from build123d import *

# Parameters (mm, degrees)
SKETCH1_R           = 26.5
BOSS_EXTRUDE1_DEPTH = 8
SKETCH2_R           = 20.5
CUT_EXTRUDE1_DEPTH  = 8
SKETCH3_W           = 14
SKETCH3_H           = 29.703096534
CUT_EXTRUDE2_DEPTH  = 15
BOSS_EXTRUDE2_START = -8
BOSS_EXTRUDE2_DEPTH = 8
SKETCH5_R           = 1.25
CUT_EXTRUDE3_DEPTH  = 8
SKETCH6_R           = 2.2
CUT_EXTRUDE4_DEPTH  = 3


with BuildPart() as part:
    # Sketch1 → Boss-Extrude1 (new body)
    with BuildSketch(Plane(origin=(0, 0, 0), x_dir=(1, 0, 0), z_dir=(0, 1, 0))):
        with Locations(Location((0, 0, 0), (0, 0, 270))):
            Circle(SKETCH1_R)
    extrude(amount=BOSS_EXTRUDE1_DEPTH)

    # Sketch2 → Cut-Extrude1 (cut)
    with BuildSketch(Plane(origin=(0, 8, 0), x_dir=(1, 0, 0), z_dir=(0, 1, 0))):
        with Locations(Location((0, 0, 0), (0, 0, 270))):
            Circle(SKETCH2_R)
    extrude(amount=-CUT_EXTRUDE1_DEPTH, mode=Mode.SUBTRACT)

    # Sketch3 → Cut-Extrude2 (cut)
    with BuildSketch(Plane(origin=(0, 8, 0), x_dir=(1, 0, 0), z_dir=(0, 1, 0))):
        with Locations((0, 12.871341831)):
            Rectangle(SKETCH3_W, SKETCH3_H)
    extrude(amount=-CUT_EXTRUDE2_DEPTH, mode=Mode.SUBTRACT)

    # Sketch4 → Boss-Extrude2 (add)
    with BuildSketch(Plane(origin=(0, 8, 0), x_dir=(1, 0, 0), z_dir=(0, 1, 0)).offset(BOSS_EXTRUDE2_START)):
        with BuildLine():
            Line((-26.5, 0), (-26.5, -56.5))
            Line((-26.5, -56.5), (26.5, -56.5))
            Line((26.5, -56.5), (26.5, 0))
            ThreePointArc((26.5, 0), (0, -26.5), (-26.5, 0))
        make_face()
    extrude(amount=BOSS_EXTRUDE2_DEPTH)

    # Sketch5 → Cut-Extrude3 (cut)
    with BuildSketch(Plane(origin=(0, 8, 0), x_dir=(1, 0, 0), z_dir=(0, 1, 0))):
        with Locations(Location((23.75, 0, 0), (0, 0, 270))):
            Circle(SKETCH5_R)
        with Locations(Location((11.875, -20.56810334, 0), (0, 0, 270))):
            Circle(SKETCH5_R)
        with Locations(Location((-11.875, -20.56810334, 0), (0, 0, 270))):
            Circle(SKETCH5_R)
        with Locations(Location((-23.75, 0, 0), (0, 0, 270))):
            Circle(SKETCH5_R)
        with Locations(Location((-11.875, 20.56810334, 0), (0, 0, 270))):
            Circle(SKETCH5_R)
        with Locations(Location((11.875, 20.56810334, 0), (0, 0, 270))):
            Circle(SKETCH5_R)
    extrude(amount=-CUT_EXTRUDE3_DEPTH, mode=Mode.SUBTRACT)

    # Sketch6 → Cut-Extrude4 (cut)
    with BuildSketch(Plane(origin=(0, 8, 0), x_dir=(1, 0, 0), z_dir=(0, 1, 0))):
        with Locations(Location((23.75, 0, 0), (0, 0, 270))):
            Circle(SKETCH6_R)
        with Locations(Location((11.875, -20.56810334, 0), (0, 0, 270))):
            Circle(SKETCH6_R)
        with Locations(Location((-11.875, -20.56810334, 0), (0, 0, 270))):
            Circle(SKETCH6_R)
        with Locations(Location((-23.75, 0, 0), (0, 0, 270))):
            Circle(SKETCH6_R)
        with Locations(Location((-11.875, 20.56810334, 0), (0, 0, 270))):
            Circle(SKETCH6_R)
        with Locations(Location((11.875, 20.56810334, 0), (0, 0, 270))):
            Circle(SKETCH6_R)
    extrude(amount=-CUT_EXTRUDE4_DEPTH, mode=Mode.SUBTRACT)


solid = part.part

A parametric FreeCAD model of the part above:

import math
import FreeCAD as App
import Part
import Sketcher
from FreeCAD import Vector


def add_polygon(sketch, points):
    """Adds a closed chain of lines whose ends are joined by coincident constraints."""
    first, n = sketch.GeometryCount, len(points)
    for a, b in zip(points, points[1:] + points[:1]):
        sketch.addGeometry(Part.LineSegment(App.Vector(*a, 0), App.Vector(*b, 0)), False)
    for i in range(n):
        sketch.addConstraint(Sketcher.Constraint("Coincident", first + i, 2, first + (i + 1) % n, 1))

doc = App.newDocument("Part")
params = doc.addObject("Spreadsheet::Sheet", "Params")
for row, (alias, value) in enumerate([
    ("sketch1_diameter", "53 mm"),
    ("pad1_length", "8 mm"),
    ("sketch2_diameter", "41 mm"),
    ("pocket1_length", "8 mm"),
    ("sketch3_width", "14 mm"),
    ("pocket2_length", "15 mm"),
    ("sketch4_radius", "26.5 mm"),
    ("sketch4_height", "56.5 mm"),
    ("pad2_length", "8 mm"),
    ("sketch5_diameter", "2.5 mm"),
    ("pocket3_length", "8 mm"),
    ("sketch6_diameter", "4.4 mm"),
    ("pocket4_length", "3 mm"),
], start=1):
    params.set(f"A{row}", alias)
    params.set(f"B{row}", "=" + value)
    params.setAlias(f"B{row}", alias)

body = doc.addObject("PartDesign::Body", "Body")

# Sketch on XZ plane
sketch1 = doc.addObject("Sketcher::SketchObject", "Sketch")
body.addObject(sketch1)
sketch1.AttachmentSupport = (doc.XZ_Plane, [""])
sketch1.MapMode = "FlatFace"
sketch1.addGeometry(Part.Circle(Vector(0, 0, 0), Vector(0, 0, 1), 26), False)
sketch1.addConstraint(Sketcher.Constraint("Coincident", 0, 3, -1, 1))
sketch1.addConstraint(Sketcher.Constraint("Diameter", 0, 53.0))
sketch1.setExpression("Constraints[1]", "Params.sketch1_diameter")
pad1 = doc.addObject("PartDesign::Pad", "Pad")
body.addObject(pad1)
pad1.Profile = sketch1
pad1.setExpression("Length", "Params.pad1_length")
pad1.Reversed = True

# Sketch on XZ plane
sketch2 = doc.addObject("Sketcher::SketchObject", "Sketch001")
body.addObject(sketch2)
sketch2.AttachmentSupport = (doc.XZ_Plane, [""])
sketch2.MapMode = "FlatFace"
sketch2.AttachmentOffset = App.Placement(Vector(0, 0, -8), App.Rotation())
sketch2.addGeometry(Part.Circle(Vector(0, 0, 0), Vector(0, 0, 1), 20), False)
sketch2.addConstraint(Sketcher.Constraint("Coincident", 0, 3, -1, 1))
sketch2.addConstraint(Sketcher.Constraint("Diameter", 0, 41.0))
sketch2.setExpression("Constraints[1]", "Params.sketch2_diameter")
pocket1 = doc.addObject("PartDesign::Pocket", "Pocket")
body.addObject(pocket1)
pocket1.Profile = sketch2
pocket1.setExpression("Length", "Params.pocket1_length")
pocket1.Reversed = True

# Sketch on XZ plane
sketch3 = doc.addObject("Sketcher::SketchObject", "Sketch002")
body.addObject(sketch3)
sketch3.AttachmentSupport = (doc.XZ_Plane, [""])
sketch3.MapMode = "FlatFace"
sketch3.AttachmentOffset = App.Placement(Vector(0, 0, -8), App.Rotation())
add_polygon(sketch3, [(-7, -28), (-7, 2), (7, 2), (7, -28)])  # lines 0-3
sketch3.addConstraint(Sketcher.Constraint("Vertical", 0))
sketch3.addConstraint(Sketcher.Constraint("Horizontal", 1))
sketch3.addConstraint(Sketcher.Constraint("Vertical", 2))
sketch3.addConstraint(Sketcher.Constraint("Horizontal", 3))
sketch3.addConstraint(Sketcher.Constraint("DistanceX", 1, 1, 1, 2, 14.0))
sketch3.addConstraint(Sketcher.Constraint("DistanceX", 0, 2, -1, 1, 7.0))
sketch3.addConstraint(Sketcher.Constraint("DistanceY", 0, 1, 0, 2, 29.703097))
sketch3.addConstraint(Sketcher.Constraint("DistanceY", 2, 2, -1, 1, 27.72289))
sketch3.setExpression("Constraints[8]", "Params.sketch3_width")
pocket2 = doc.addObject("PartDesign::Pocket", "Pocket001")
body.addObject(pocket2)
pocket2.Profile = sketch3
pocket2.setExpression("Length", "Params.pocket2_length")
pocket2.Reversed = True

# Sketch on XZ plane
sketch4 = doc.addObject("Sketcher::SketchObject", "Sketch003")
body.addObject(sketch4)
sketch4.AttachmentSupport = (doc.XZ_Plane, [""])
sketch4.MapMode = "FlatFace"
sketch4.addGeometry(Part.LineSegment(Vector(-26, 0, 0), Vector(-26, 56, 0)), False)
sketch4.addGeometry(Part.LineSegment(Vector(-26, 56, 0), Vector(26, 56, 0)), False)
sketch4.addGeometry(Part.LineSegment(Vector(26, 56, 0), Vector(26, 0, 0)), False)
sketch4.addGeometry(Part.ArcOfCircle(Part.Circle(Vector(0, 0, 0), Vector(0, 0, 1), 26), math.radians(0), math.radians(180)), False)
sketch4.addConstraint(Sketcher.Constraint("Coincident", 0, 2, 1, 1))
sketch4.addConstraint(Sketcher.Constraint("Coincident", 1, 2, 2, 1))
sketch4.addConstraint(Sketcher.Constraint("Tangent", 2, 2, 3, 1))
sketch4.addConstraint(Sketcher.Constraint("Tangent", 3, 2, 0, 1))
sketch4.addConstraint(Sketcher.Constraint("Vertical", 0))
sketch4.addConstraint(Sketcher.Constraint("Horizontal", 1))
sketch4.addConstraint(Sketcher.Constraint("Vertical", 2))
sketch4.addConstraint(Sketcher.Constraint("Coincident", 3, 3, -1, 1))
sketch4.addConstraint(Sketcher.Constraint("Radius", 3, 26.5))
sketch4.addConstraint(Sketcher.Constraint("DistanceY", 0, 1, 0, 2, 56.5))
sketch4.setExpression("Constraints[8]", "Params.sketch4_radius")
sketch4.setExpression("Constraints[9]", "Params.sketch4_height")
pad2 = doc.addObject("PartDesign::Pad", "Pad001")
body.addObject(pad2)
pad2.Profile = sketch4
pad2.setExpression("Length", "Params.pad2_length")
pad2.Reversed = True

# Sketch on XZ plane
sketch5 = doc.addObject("Sketcher::SketchObject", "Sketch004")
body.addObject(sketch5)
sketch5.AttachmentSupport = (doc.XZ_Plane, [""])
sketch5.MapMode = "FlatFace"
sketch5.AttachmentOffset = App.Placement(Vector(0, 0, -8), App.Rotation())
sketch5.addGeometry(Part.Circle(Vector(23.8, 0, 0), Vector(0, 0, 1), 1.2), False)
sketch5.addGeometry(Part.Circle(Vector(11.9, 20.6, 0), Vector(0, 0, 1), 1.2), False)
sketch5.addGeometry(Part.Circle(Vector(-11.9, 20.6, 0), Vector(0, 0, 1), 1.2), False)
sketch5.addGeometry(Part.Circle(Vector(-23.8, 0, 0), Vector(0, 0, 1), 1.2), False)
sketch5.addGeometry(Part.Circle(Vector(-11.9, -20.6, 0), Vector(0, 0, 1), 1.2), False)
sketch5.addGeometry(Part.Circle(Vector(11.9, -20.6, 0), Vector(0, 0, 1), 1.2), False)
sketch5.addConstraint(Sketcher.Constraint("Equal", 0, 1))
sketch5.addConstraint(Sketcher.Constraint("Equal", 1, 2))
sketch5.addConstraint(Sketcher.Constraint("Equal", 2, 3))
sketch5.addConstraint(Sketcher.Constraint("Equal", 3, 4))
sketch5.addConstraint(Sketcher.Constraint("Equal", 4, 5))
sketch5.addConstraint(Sketcher.Constraint("Symmetric", 0, 3, 3, 3, -1, 1))
sketch5.addConstraint(Sketcher.Constraint("Symmetric", 1, 3, 4, 3, -1, 1))
sketch5.addConstraint(Sketcher.Constraint("Symmetric", 2, 3, 5, 3, -1, 1))
sketch5.addConstraint(Sketcher.Constraint("Symmetric", 1, 3, 2, 3, -2))
sketch5.addConstraint(Sketcher.Constraint("PointOnObject", 0, 3, -1))
sketch5.addConstraint(Sketcher.Constraint("Diameter", 0, 2.5))
sketch5.addConstraint(Sketcher.Constraint("DistanceX", 3, 3, 0, 3, 47.5))
sketch5.addConstraint(Sketcher.Constraint("DistanceX", 2, 3, 1, 3, 23.75))
sketch5.addConstraint(Sketcher.Constraint("DistanceY", -1, 1, 1, 3, 20.568103))
sketch5.setExpression("Constraints[10]", "Params.sketch5_diameter")
pocket3 = doc.addObject("PartDesign::Pocket", "Pocket002")
body.addObject(pocket3)
pocket3.Profile = sketch5
pocket3.setExpression("Length", "Params.pocket3_length")
pocket3.Reversed = True

# Sketch on XZ plane
sketch6 = doc.addObject("Sketcher::SketchObject", "Sketch005")
body.addObject(sketch6)
sketch6.AttachmentSupport = (doc.XZ_Plane, [""])
sketch6.MapMode = "FlatFace"
sketch6.AttachmentOffset = App.Placement(Vector(0, 0, -8), App.Rotation())
sketch6.addGeometry(Part.Circle(Vector(23.8, 0, 0), Vector(0, 0, 1), 2.2), False)
sketch6.addGeometry(Part.Circle(Vector(11.9, 20.6, 0), Vector(0, 0, 1), 2.2), False)
sketch6.addGeometry(Part.Circle(Vector(-11.9, 20.6, 0), Vector(0, 0, 1), 2.2), False)
sketch6.addGeometry(Part.Circle(Vector(-23.8, 0, 0), Vector(0, 0, 1), 2.2), False)
sketch6.addGeometry(Part.Circle(Vector(-11.9, -20.6, 0), Vector(0, 0, 1), 2.2), False)
sketch6.addGeometry(Part.Circle(Vector(11.9, -20.6, 0), Vector(0, 0, 1), 2.2), False)
sketch6.addConstraint(Sketcher.Constraint("Equal", 0, 1))
sketch6.addConstraint(Sketcher.Constraint("Equal", 1, 2))
sketch6.addConstraint(Sketcher.Constraint("Equal", 2, 3))
sketch6.addConstraint(Sketcher.Constraint("Equal", 3, 4))
sketch6.addConstraint(Sketcher.Constraint("Equal", 4, 5))
sketch6.addConstraint(Sketcher.Constraint("Symmetric", 0, 3, 3, 3, -1, 1))
sketch6.addConstraint(Sketcher.Constraint("Symmetric", 1, 3, 4, 3, -1, 1))
sketch6.addConstraint(Sketcher.Constraint("Symmetric", 2, 3, 5, 3, -1, 1))
sketch6.addConstraint(Sketcher.Constraint("Symmetric", 1, 3, 2, 3, -2))
sketch6.addConstraint(Sketcher.Constraint("PointOnObject", 0, 3, -1))
sketch6.addConstraint(Sketcher.Constraint("Diameter", 0, 4.4))
sketch6.addConstraint(Sketcher.Constraint("DistanceX", 3, 3, 0, 3, 47.5))
sketch6.addConstraint(Sketcher.Constraint("DistanceX", 2, 3, 1, 3, 23.75))
sketch6.addConstraint(Sketcher.Constraint("DistanceY", -1, 1, 1, 3, 20.568103))
sketch6.setExpression("Constraints[10]", "Params.sketch6_diameter")
pocket4 = doc.addObject("PartDesign::Pocket", "Pocket003")
body.addObject(pocket4)
pocket4.Profile = sketch6
pocket4.setExpression("Length", "Params.pocket4_length")
pocket4.Reversed = True

doc.recompute()
